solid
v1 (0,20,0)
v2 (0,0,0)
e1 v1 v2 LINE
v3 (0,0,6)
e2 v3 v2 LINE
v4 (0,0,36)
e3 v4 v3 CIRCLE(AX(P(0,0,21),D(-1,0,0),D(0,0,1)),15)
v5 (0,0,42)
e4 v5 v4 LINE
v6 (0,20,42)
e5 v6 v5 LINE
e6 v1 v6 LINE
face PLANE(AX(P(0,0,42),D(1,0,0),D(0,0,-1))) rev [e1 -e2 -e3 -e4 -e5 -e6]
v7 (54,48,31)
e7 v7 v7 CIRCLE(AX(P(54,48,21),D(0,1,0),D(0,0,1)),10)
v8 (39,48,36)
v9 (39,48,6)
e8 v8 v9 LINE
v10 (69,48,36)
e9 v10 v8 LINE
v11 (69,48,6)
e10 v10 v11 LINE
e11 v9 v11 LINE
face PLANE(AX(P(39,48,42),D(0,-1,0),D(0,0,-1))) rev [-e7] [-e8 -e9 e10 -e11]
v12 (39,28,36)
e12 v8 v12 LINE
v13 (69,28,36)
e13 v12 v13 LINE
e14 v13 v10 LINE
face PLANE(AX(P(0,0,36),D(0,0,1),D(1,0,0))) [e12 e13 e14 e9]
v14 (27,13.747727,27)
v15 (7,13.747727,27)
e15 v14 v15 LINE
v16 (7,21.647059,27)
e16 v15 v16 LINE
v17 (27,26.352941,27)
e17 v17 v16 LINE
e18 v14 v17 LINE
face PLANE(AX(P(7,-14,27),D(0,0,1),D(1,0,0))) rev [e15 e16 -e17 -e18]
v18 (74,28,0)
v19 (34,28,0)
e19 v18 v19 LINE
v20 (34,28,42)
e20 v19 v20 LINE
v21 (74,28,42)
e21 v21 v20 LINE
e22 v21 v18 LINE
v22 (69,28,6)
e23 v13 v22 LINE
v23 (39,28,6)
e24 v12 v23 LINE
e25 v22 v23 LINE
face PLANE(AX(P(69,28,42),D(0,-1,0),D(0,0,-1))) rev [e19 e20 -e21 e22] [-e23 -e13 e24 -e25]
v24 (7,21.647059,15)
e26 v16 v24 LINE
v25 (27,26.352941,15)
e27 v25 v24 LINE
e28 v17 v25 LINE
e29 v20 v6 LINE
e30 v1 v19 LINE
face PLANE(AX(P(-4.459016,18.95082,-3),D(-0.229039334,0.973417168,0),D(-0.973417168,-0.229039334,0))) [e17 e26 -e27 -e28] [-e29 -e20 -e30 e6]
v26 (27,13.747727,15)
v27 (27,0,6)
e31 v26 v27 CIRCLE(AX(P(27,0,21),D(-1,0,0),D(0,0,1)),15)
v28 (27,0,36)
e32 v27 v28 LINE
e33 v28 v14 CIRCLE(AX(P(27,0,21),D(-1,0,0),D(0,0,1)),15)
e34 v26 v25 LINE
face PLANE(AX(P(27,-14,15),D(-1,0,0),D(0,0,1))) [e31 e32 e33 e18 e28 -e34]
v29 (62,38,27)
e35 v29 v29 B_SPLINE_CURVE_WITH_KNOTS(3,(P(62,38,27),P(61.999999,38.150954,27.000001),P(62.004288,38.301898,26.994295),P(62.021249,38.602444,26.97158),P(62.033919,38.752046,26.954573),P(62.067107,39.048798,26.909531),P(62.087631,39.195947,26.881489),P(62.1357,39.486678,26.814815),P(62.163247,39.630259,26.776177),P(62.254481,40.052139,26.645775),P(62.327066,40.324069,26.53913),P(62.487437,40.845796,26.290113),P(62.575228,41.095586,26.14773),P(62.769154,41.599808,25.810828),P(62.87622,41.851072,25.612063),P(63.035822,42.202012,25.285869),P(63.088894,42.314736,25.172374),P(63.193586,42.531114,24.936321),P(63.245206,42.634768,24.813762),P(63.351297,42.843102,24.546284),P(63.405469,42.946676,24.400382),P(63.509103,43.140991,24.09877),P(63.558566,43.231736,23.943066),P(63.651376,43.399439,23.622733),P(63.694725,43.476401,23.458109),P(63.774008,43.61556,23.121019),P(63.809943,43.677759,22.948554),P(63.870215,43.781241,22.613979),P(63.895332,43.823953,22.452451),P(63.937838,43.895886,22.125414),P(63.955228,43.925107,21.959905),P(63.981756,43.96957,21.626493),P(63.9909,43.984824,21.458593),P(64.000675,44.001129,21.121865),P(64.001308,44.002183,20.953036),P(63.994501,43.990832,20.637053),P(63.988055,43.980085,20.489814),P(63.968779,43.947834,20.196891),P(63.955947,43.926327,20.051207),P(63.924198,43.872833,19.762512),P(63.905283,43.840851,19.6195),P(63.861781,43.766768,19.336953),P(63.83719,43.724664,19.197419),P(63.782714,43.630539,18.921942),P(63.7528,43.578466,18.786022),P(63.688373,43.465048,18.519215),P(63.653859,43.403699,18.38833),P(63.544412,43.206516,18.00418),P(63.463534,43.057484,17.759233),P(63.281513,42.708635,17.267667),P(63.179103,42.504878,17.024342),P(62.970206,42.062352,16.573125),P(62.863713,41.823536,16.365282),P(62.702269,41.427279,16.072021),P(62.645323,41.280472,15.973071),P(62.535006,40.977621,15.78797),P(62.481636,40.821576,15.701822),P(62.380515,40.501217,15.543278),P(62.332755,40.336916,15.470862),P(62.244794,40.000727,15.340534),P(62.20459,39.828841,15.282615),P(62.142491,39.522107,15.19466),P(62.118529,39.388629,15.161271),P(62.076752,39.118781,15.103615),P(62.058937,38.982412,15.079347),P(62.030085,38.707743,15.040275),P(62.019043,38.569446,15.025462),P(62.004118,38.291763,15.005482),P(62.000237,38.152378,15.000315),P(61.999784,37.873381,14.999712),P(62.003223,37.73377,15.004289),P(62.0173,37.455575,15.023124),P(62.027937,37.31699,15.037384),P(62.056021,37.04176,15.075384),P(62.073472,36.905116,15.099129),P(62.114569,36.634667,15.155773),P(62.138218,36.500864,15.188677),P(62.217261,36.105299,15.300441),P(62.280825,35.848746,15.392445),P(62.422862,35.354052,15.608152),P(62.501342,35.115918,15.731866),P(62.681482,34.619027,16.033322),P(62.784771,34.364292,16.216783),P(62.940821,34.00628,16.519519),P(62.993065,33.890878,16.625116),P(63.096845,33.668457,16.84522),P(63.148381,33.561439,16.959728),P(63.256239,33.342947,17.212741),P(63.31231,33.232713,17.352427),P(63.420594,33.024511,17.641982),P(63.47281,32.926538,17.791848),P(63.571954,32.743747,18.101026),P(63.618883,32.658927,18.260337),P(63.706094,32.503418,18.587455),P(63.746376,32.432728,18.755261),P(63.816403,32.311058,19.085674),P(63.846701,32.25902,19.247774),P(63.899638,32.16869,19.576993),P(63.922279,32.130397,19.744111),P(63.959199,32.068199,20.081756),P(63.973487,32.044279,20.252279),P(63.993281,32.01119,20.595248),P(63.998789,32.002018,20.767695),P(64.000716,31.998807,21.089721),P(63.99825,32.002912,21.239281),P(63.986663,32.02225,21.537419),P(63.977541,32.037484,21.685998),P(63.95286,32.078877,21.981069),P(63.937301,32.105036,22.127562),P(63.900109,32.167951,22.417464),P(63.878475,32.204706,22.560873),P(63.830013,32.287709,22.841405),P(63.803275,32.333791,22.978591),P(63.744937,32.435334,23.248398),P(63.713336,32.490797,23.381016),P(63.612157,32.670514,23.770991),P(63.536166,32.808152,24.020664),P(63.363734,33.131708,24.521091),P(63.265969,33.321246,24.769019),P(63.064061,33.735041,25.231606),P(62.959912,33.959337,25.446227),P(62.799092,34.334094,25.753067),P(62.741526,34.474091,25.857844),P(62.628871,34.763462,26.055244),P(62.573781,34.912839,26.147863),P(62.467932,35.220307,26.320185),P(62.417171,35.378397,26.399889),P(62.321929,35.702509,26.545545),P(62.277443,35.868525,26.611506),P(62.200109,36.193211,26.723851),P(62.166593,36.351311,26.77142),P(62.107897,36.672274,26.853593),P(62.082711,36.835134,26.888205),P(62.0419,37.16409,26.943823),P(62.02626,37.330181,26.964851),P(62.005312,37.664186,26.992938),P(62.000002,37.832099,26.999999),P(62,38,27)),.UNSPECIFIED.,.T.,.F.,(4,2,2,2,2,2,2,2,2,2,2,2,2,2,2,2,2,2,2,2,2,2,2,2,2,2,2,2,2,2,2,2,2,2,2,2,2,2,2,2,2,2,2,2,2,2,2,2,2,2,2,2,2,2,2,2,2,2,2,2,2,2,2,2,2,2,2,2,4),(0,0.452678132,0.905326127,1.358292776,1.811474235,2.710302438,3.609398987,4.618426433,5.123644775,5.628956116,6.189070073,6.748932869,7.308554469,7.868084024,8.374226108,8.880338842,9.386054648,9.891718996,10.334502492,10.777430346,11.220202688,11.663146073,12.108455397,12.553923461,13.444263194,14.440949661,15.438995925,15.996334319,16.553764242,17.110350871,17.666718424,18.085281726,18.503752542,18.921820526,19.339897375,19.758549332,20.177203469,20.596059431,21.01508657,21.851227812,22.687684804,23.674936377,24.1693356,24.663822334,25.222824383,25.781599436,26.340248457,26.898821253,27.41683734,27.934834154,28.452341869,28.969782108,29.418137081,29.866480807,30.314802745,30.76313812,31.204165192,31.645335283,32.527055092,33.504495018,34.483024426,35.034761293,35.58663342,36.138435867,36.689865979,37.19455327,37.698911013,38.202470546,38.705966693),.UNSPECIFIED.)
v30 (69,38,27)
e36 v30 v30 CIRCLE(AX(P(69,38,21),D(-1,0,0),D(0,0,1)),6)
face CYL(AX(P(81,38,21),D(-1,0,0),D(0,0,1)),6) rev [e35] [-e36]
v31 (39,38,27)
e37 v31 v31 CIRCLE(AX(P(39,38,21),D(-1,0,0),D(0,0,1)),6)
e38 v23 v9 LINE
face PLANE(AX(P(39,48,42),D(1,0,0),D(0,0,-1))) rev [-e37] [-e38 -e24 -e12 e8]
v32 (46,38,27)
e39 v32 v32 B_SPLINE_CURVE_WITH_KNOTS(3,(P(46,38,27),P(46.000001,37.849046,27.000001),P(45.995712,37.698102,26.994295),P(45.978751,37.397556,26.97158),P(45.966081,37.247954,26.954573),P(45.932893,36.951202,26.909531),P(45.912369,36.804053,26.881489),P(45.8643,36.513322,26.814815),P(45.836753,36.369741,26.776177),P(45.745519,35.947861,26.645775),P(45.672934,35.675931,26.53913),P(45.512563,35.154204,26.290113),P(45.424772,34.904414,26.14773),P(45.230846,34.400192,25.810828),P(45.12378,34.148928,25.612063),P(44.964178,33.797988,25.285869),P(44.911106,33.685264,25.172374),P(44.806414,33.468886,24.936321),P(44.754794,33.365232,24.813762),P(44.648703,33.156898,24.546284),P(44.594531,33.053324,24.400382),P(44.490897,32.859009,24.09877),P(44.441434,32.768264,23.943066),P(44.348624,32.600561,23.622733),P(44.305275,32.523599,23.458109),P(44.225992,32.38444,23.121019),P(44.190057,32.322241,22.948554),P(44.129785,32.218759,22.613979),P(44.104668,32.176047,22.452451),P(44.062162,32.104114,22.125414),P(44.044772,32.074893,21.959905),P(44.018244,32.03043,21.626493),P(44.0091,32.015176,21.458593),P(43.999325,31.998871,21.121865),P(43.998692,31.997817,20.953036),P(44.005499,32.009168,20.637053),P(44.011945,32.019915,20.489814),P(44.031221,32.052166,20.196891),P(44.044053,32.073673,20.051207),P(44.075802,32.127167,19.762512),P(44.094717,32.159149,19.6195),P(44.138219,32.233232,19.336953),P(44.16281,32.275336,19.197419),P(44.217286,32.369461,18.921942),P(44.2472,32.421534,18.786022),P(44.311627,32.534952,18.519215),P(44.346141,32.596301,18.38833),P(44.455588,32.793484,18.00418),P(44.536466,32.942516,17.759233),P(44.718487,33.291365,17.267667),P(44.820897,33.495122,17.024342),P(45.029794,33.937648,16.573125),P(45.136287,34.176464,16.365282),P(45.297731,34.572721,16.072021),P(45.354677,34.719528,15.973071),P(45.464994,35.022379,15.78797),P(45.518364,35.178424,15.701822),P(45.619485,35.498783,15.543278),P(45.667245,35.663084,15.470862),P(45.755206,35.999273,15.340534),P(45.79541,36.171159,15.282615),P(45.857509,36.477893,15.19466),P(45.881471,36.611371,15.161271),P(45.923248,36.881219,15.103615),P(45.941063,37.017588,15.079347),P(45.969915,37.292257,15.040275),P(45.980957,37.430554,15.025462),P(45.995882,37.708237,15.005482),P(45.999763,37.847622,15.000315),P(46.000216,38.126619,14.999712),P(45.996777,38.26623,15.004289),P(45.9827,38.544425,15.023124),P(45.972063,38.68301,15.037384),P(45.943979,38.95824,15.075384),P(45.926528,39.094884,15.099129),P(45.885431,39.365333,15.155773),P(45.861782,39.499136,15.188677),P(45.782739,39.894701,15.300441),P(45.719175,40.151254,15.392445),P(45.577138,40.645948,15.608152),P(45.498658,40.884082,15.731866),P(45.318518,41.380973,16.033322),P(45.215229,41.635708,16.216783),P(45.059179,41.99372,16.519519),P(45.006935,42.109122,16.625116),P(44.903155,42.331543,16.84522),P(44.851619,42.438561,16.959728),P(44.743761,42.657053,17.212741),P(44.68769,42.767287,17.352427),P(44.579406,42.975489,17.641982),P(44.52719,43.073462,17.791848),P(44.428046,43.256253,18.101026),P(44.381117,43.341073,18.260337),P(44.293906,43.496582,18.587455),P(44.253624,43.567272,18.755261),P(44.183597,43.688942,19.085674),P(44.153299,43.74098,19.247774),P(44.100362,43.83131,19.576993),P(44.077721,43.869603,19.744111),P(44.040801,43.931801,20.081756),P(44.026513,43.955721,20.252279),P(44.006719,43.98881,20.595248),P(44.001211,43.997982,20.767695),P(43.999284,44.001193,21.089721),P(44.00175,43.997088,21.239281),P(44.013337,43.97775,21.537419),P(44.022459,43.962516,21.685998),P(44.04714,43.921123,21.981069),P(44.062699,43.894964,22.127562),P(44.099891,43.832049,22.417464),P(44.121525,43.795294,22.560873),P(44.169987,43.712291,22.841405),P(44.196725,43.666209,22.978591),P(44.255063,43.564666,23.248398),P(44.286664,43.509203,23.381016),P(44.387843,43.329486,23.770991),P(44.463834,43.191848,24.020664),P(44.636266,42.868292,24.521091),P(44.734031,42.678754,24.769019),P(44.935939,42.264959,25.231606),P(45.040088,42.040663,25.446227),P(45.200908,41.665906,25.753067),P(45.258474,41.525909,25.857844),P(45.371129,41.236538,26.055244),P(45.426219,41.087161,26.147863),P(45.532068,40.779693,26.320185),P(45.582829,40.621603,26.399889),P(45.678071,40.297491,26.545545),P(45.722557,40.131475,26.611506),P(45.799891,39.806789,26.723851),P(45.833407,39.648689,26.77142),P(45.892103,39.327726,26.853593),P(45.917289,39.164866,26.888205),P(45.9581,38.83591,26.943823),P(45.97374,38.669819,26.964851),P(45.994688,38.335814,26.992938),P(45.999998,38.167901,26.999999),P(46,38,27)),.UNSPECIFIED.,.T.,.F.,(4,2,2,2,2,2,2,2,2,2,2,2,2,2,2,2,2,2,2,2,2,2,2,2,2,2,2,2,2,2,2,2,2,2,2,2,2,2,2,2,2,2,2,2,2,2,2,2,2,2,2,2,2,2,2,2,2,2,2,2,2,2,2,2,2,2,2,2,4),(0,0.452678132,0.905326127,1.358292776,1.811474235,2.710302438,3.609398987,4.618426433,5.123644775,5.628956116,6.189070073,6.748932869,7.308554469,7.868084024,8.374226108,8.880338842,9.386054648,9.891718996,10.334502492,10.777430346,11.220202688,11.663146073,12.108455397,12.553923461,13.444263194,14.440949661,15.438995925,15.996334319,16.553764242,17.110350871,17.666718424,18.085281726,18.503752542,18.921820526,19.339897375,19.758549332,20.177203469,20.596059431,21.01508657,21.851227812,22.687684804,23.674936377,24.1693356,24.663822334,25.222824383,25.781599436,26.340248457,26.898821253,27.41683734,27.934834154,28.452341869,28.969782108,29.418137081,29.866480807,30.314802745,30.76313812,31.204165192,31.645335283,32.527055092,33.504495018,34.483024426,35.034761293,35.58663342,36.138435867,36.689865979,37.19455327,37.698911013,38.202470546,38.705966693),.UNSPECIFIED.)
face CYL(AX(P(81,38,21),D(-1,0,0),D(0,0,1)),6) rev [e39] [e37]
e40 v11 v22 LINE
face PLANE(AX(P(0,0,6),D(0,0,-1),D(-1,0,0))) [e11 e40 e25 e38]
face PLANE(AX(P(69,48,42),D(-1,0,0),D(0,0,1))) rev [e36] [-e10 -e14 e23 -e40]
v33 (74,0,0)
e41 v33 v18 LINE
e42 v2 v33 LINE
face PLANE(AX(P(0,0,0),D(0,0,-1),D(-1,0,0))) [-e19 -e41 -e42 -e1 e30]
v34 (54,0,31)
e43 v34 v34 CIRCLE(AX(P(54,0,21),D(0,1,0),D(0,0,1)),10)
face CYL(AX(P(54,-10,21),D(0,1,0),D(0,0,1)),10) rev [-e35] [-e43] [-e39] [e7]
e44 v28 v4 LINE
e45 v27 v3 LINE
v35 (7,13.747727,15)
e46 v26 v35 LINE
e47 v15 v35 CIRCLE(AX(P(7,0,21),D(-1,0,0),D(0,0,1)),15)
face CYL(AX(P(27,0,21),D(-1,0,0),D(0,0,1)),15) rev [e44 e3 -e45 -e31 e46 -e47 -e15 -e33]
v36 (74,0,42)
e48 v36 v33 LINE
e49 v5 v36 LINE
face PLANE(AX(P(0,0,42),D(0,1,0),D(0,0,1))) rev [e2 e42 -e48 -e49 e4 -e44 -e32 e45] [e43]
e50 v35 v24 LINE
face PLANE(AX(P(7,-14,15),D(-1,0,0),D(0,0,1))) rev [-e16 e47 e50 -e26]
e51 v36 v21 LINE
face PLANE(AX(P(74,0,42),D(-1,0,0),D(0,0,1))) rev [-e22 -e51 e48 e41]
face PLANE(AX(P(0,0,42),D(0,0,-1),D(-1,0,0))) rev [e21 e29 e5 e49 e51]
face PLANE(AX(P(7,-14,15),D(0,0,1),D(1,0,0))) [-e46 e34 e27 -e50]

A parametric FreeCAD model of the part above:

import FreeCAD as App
import Part
import Sketcher
from FreeCAD import Vector

doc = App.newDocument("Part")
body = doc.addObject("PartDesign::Body", "Body")

sketch1 = body.newObject("Sketcher::SketchObject", "Sketch")
sketch1.AttachmentSupport = (doc.getObject("XY_Plane"), [""])
sketch1.MapMode = "FlatFace"
sketch1.addGeometry(Part.LineSegment(Vector(39, 28, 0), Vector(0, 28, 0)), False)
sketch1.addGeometry(Part.LineSegment(Vector(0, 28, 0), Vector(0, 0, 0)), False)
sketch1.addGeometry(Part.LineSegment(Vector(0, 0, 0), Vector(74, 0, 0)), False)
sketch1.addGeometry(Part.LineSegment(Vector(74, 0, 0), Vector(74, 28, 0)), False)
sketch1.addGeometry(Part.LineSegment(Vector(74, 28, 0), Vector(69, 28, 0)), False)
sketch1.addGeometry(Part.LineSegment(Vector(69, 28, 0), Vector(69, 48, 0)), False)
sketch1.addGeometry(Part.LineSegment(Vector(69, 48, 0), Vector(39, 48, 0)), False)
sketch1.addGeometry(Part.LineSegment(Vector(39, 48, 0), Vector(39, 28, 0)), False)
sketch1.addConstraint(Sketcher.Constraint("Coincident", 0, 2, 1, 1))
sketch1.addConstraint(Sketcher.Constraint("Coincident", 1, 2, 2, 1))
sketch1.addConstraint(Sketcher.Constraint("Coincident", 2, 2, 3, 1))
sketch1.addConstraint(Sketcher.Constraint("Coincident", 3, 2, 4, 1))
sketch1.addConstraint(Sketcher.Constraint("Coincident", 4, 2, 5, 1))
sketch1.addConstraint(Sketcher.Constraint("Coincident", 5, 2, 6, 1))
sketch1.addConstraint(Sketcher.Constraint("Coincident", 6, 2, 7, 1))
sketch1.addConstraint(Sketcher.Constraint("Coincident", 7, 2, 0, 1))
sketch1.addConstraint(Sketcher.Constraint("Horizontal", 0))
sketch1.addConstraint(Sketcher.Constraint("Vertical", 1))
sketch1.addConstraint(Sketcher.Constraint("Horizontal", 2))
sketch1.addConstraint(Sketcher.Constraint("Vertical", 3))
sketch1.addConstraint(Sketcher.Constraint("Horizontal", 4))
sketch1.addConstraint(Sketcher.Constraint("Vertical", 5))
sketch1.addConstraint(Sketcher.Constraint("Horizontal", 6))
sketch1.addConstraint(Sketcher.Constraint("Vertical", 7))
sketch1.addConstraint(Sketcher.Constraint("Coincident", 1, 2, -1, 1))
sketch1.addConstraint(Sketcher.Constraint("Horizontal", 0, 2, 3, 2))
sketch1.addConstraint(Sketcher.Constraint("DistanceX", 0, 2, 0, 1, 39.0))
sketch1.addConstraint(Sketcher.Constraint("DistanceX", 2, 1, 2, 2, 74.0))
sketch1.addConstraint(Sketcher.Constraint("DistanceX", 4, 2, 4, 1, 5.0))
sketch1.addConstraint(Sketcher.Constraint("DistanceY", 1, 2, 1, 1, 28.0))
sketch1.addConstraint(Sketcher.Constraint("DistanceY", 5, 1, 5, 2, 20.0))
pad1 = body.newObject("PartDesign::Pad", "Pad")
pad1.Profile = sketch1
pad1.Length = 42

sketch2 = body.newObject("Sketcher::SketchObject", "Sketch001")
sketch2.AttachmentSupport = (doc.getObject("XZ_Plane"), [""])
sketch2.MapMode = "FlatFace"
sketch2.AttachmentOffset = App.Placement(Vector(0, 0, -28), App.Rotation())
sketch2.addGeometry(Part.LineSegment(Vector(7, 15, 0), Vector(7, 27, 0)), False)
sketch2.addGeometry(Part.LineSegment(Vector(7, 27, 0), Vector(27, 27, 0)), False)
sketch2.addGeometry(Part.LineSegment(Vector(27, 27, 0), Vector(27, 15, 0)), False)
sketch2.addGeometry(Part.LineSegment(Vector(27, 15, 0), Vector(7, 15, 0)), False)
sketch2.addConstraint(Sketcher.Constraint("Coincident", 0, 2, 1, 1))
sketch2.addConstraint(Sketcher.Constraint("Coincident", 1, 2, 2, 1))
sketch2.addConstraint(Sketcher.Constraint("Coincident", 2, 2, 3, 1))
sketch2.addConstraint(Sketcher.Constraint("Coincident", 3, 2, 0, 1))
sketch2.addConstraint(Sketcher.Constraint("Vertical", 0))
sketch2.addConstraint(Sketcher.Constraint("Horizontal", 1))
sketch2.addConstraint(Sketcher.Constraint("Vertical", 2))
sketch2.addConstraint(Sketcher.Constraint("Horizontal", 3))
sketch2.addConstraint(Sketcher.Constraint("DistanceX", 1, 1, 1, 2, 20.0))
sketch2.addConstraint(Sketcher.Constraint("DistanceY", 0, 1, 0, 2, 12.0))
sketch2.addConstraint(Sketcher.Constraint("DistanceX", -1, 1, 0, 2, 7.0))
sketch2.addConstraint(Sketcher.Constraint("DistanceY", -1, 1, 0, 2, 27.0))
pocket1 = body.newObject("PartDesign::Pocket", "Pocket")
pocket1.Profile = sketch2
pocket1.Length = 42
pocket1.Reversed = True

sketch3 = body.newObject("Sketcher::SketchObject", "Sketch002")
sketch3.AttachmentSupport = (doc.getObject("XY_Plane"), [""])
sketch3.MapMode = "FlatFace"
sketch3.AttachmentOffset = App.Placement(Vector(0, 0, 42), App.Rotation())
sketch3.addGeometry(Part.LineSegment(Vector(0, 20, 0), Vector(34, 28, 0)), False)
sketch3.addGeometry(Part.LineSegment(Vector(34, 28, 0), Vector(0, 28, 0)), False)
sketch3.addGeometry(Part.LineSegment(Vector(0, 28, 0), Vector(0, 20, 0)), False)
sketch3.addConstraint(Sketcher.Constraint("Coincident", 0, 2, 1, 1))
sketch3.addConstraint(Sketcher.Constraint("Coincident", 1, 2, 2, 1))
sketch3.addConstraint(Sketcher.Constraint("Coincident", 2, 2, 0, 1))
sketch3.addConstraint(Sketcher.Constraint("Horizontal", 1))
sketch3.addConstraint(Sketcher.Constraint("Vertical", 2))
sketch3.addConstraint(Sketcher.Constraint("PointOnObject", 1, 2, -2))
sketch3.addConstraint(Sketcher.Constraint("DistanceX", 1, 2, 1, 1, 34.0))
sketch3.addConstraint(Sketcher.Constraint("DistanceY", 2, 2, 2, 1, 8.0))
sketch3.addConstraint(Sketcher.Constraint("DistanceY", -1, 1, 0, 2, 28.0))
pocket2 = body.newObject("PartDesign::Pocket", "Pocket001")
pocket2.Profile = sketch3
pocket2.Length = 45

sketch4 = body.newObject("Sketcher::SketchObject", "Sketch003")
sketch4.AttachmentSupport = (doc.getObject("XY_Plane"), [""])
sketch4.MapMode = "FlatFace"
sketch4.AttachmentOffset = App.Placement(Vector(0, 0, 42), App.Rotation())
sketch4.addGeometry(Part.LineSegment(Vector(39, 48, 0), Vector(39, 28, 0)), False)
sketch4.addGeometry(Part.LineSegment(Vector(39, 28, 0), Vector(69, 28, 0)), False)
sketch4.addGeometry(Part.LineSegment(Vector(69, 28, 0), Vector(69, 48, 0)), False)
sketch4.addGeometry(Part.LineSegment(Vector(69, 48, 0), Vector(39, 48, 0)), False)
sketch4.addConstraint(Sketcher.Constraint("Coincident", 0, 2, 1, 1))
sketch4.addConstraint(Sketcher.Constraint("Coincident", 1, 2, 2, 1))
sketch4.addConstraint(Sketcher.Constraint("Coincident", 2, 2, 3, 1))
sketch4.addConstraint(Sketcher.Constraint("Coincident", 3, 2, 0, 1))
sketch4.addConstraint(Sketcher.Constraint("Vertical", 0))
sketch4.addConstraint(Sketcher.Constraint("Horizontal", 1))
sketch4.addConstraint(Sketcher.Constraint("Vertical", 2))
sketch4.addConstraint(Sketcher.Constraint("Horizontal", 3))
sketch4.addConstraint(Sketcher.Constraint("DistanceX", 1, 1, 1, 2, 30.0))
sketch4.addConstraint(Sketcher.Constraint("DistanceY", 0, 2, 0, 1, 20.0))
sketch4.addConstraint(Sketcher.Constraint("DistanceX", -1, 1, 0, 2, 39.0))
sketch4.addConstraint(Sketcher.Constraint("DistanceY", -1, 1, 0, 2, 28.0))
pocket3 = body.newObject("PartDesign::Pocket", "Pocket002")
pocket3.Profile = sketch4
pocket3.Length = 6

sketch5 = body.newObject("Sketcher::SketchObject", "Sketch004")
sketch5.AttachmentSupport = (doc.getObject("XY_Plane"), [""])
sketch5.MapMode = "FlatFace"
sketch5.addGeometry(Part.LineSegment(Vector(69, 48, 0), Vector(69, 28, 0)), False)
sketch5.addGeometry(Part.LineSegment(Vector(69, 28, 0), Vector(39, 28, 0)), False)
sketch5.addGeometry(Part.LineSegment(Vector(39, 28, 0), Vector(39, 48, 0)), False)
sketch5.addGeometry(Part.LineSegment(Vector(39, 48, 0), Vector(69, 48, 0)), False)
sketch5.addConstraint(Sketcher.Constraint("Coincident", 0, 2, 1, 1))
sketch5.addConstraint(Sketcher.Constraint("Coincident", 1, 2, 2, 1))
sketch5.addConstraint(Sketcher.Constraint("Coincident", 2, 2, 3, 1))
sketch5.addConstraint(Sketcher.Constraint("Coincident", 3, 2, 0, 1))
sketch5.addConstraint(Sketcher.Constraint("Vertical", 0))
sketch5.addConstraint(Sketcher.Constraint("Horizontal", 1))
sketch5.addConstraint(Sketcher.Constraint("Vertical", 2))
sketch5.addConstraint(Sketcher.Constraint("Horizontal", 3))
sketch5.addConstraint(Sketcher.Constraint("DistanceX", 1, 2, 1, 1, 30.0))
sketch5.addConstraint(Sketcher.Constraint("DistanceY", 0, 2, 0, 1, 20.0))
sketch5.addConstraint(Sketcher.Constraint("DistanceX", -1, 1, 0, 2, 69.0))
sketch5.addConstraint(Sketcher.Constraint("DistanceY", -1, 1, 0, 2, 28.0))
pocket4 = body.newObject("PartDesign::Pocket", "Pocket003")
pocket4.Profile = sketch5
pocket4.Length = 6
pocket4.Reversed = True

sketch6 = body.newObject("Sketcher::SketchObject", "Sketch005")
sketch6.AttachmentSupport = (doc.getObject("YZ_Plane"), [""])
sketch6.MapMode = "FlatFace"
sketch6.addGeometry(Part.Circle(Vector(0, 21, 0), Vector(0, 0, 1), 7.5), False)
sketch6.addConstraint(Sketcher.Constraint("PointOnObject", 0, 3, -2))
sketch6.addConstraint(Sketcher.Constraint("Diameter", 0, 15.0))
sketch6.addConstraint(Sketcher.Constraint("DistanceY", -1, 1, 0, 3, 21.0))
pocket5 = body.newObject("PartDesign::Pocket", "Pocket004")
pocket5.Profile = sketch6
pocket5.Length = 27
pocket5.Reversed = True

sketch7 = body.newObject("Sketcher::SketchObject", "Sketch006")
sketch7.AttachmentSupport = (doc.getObject("YZ_Plane"), [""])
sketch7.MapMode = "FlatFace"
sketch7.AttachmentOffset = App.Placement(Vector(0, 0, 39), App.Rotation())
sketch7.addGeometry(Part.Circle(Vector(38, 21, 0), Vector(0, 0, 1), 6), False)
sketch7.addConstraint(Sketcher.Constraint("Diameter", 0, 12.0))
sketch7.addConstraint(Sketcher.Constraint("DistanceX", -1, 1, 0, 3, 38.0))
sketch7.addConstraint(Sketcher.Constraint("DistanceY", -1, 1, 0, 3, 21.0))
pocket6 = body.newObject("PartDesign::Pocket", "Pocket005")
pocket6.Profile = sketch7
pocket6.Length = 42
pocket6.Reversed = True

sketch8 = body.newObject("Sketcher::SketchObject", "Sketch007")
sketch8.AttachmentSupport = (doc.getObject("XZ_Plane"), [""])
sketch8.MapMode = "FlatFace"
sketch8.AttachmentOffset = App.Placement(Vector(0, 0, -48), App.Rotation())
sketch8.addGeometry(Part.Circle(Vector(54, 21, 0), Vector(0, 0, 1), 7.5), False)
sketch8.addConstraint(Sketcher.Constraint("Diameter", 0, 15.0))
sketch8.addConstraint(Sketcher.Constraint("DistanceX", -1, 1, 0, 3, 54.0))
sketch8.addConstraint(Sketcher.Constraint("DistanceY", -1, 1, 0, 3, 21.0))
pocket7 = body.newObject("PartDesign::Pocket", "Pocket006")
pocket7.Profile = sketch8
pocket7.Length = 70
pocket7.Reversed = True

sketch9 = body.newObject("Sketcher::SketchObject", "Sketch008")
sketch9.AttachmentSupport = (doc.getObject("YZ_Plane"), [""])
sketch9.MapMode = "FlatFace"
sketch9.addGeometry(Part.Circle(Vector(0, 21, 0), Vector(0, 0, 1), 15), False)
sketch9.addConstraint(Sketcher.Constraint("PointOnObject", 0, 3, -2))
sketch9.addConstraint(Sketcher.Constraint("Diameter", 0, 30.0))
sketch9.addConstraint(Sketcher.Constraint("DistanceY", -1, 1, 0, 3, 21.0))
pocket8 = body.newObject("PartDesign::Pocket", "Pocket007")
pocket8.Profile = sketch9
pocket8.Length = 27
pocket8.Reversed = True

sketch10 = body.newObject("Sketcher::SketchObject", "Sketch009")
sketch10.AttachmentSupport = (doc.getObject("XZ_Plane"), [""])
sketch10.MapMode = "FlatFace"
sketch10.AttachmentOffset = App.Placement(Vector(0, 0, -48), App.Rotation())
sketch10.addGeometry(Part.Circle(Vector(54, 21, 0), Vector(0, 0, 1), 10), False)
sketch10.addConstraint(Sketcher.Constraint("Diameter", 0, 20.0))
sketch10.addConstraint(Sketcher.Constraint("DistanceX", -1, 1, 0, 3, 54.0))
sketch10.addConstraint(Sketcher.Constraint("DistanceY", -1, 1, 0, 3, 21.0))
pocket9 = body.newObject("PartDesign::Pocket", "Pocket008")
pocket9.Profile = sketch10
pocket9.Length = 58
pocket9.Reversed = True

doc.recompute()
